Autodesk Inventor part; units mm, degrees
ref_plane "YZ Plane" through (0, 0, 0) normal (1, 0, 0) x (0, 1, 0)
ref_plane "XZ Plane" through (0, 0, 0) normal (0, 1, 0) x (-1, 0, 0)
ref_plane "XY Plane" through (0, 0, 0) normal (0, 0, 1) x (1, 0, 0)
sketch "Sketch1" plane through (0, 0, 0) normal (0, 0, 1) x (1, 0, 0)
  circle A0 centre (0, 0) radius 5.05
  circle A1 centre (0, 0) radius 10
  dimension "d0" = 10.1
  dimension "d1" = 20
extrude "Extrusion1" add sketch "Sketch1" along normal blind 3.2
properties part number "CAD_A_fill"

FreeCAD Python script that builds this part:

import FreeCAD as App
import Part
import Sketcher
from FreeCAD import Vector

doc = App.newDocument("Part")
body = doc.addObject("PartDesign::Body", "Body")

# Sketch on XY plane
sketch1 = doc.addObject("Sketcher::SketchObject", "Sketch")
body.addObject(sketch1)
sketch1.AttachmentSupport = (doc.XY_Plane, [""])
sketch1.MapMode = "FlatFace"
sketch1.addGeometry(Part.Circle(Vector(0, 0, 0), Vector(0, 0, 1), 10), False)
sketch1.addGeometry(Part.Circle(Vector(0, 0, 0), Vector(0, 0, 1), 5), False)
sketch1.addConstraint(Sketcher.Constraint("Coincident", 0, 3, -1, 1))
sketch1.addConstraint(Sketcher.Constraint("Coincident", 1, 3, -1, 1))
sketch1.addConstraint(Sketcher.Constraint("Diameter", 0, 20.0))
sketch1.addConstraint(Sketcher.Constraint("Diameter", 1, 10.1))
pad1 = doc.addObject("PartDesign::Pad", "Pad")
body.addObject(pad1)
pad1.Profile = sketch1
pad1.Length = 3.2

doc.recompute()
